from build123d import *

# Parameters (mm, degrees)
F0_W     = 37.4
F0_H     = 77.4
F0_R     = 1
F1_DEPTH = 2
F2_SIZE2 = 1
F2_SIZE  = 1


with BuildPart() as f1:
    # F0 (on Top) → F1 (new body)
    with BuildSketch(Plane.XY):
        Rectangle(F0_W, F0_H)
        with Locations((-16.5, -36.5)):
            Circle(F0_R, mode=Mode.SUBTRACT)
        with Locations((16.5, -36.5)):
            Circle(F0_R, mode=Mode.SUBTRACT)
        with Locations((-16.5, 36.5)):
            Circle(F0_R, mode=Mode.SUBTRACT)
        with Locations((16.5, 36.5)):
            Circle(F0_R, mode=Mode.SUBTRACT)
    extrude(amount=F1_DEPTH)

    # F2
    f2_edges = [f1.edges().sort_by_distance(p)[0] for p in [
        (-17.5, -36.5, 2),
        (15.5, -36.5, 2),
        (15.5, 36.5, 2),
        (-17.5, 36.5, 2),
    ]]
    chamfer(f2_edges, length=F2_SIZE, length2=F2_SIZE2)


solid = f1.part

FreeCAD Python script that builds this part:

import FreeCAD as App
import Part
import Sketcher
from FreeCAD import Vector


def edges_at(feature, points):
    """Names of the edges that pass closest to the given points."""
    edges = feature.Shape.Edges
    near = lambda p: min(range(len(edges)), key=lambda i: edges[i].distToShape(Part.Vertex(*p))[0])
    return sorted({f"Edge{near(p) + 1}" for p in points})


def add_polygon(sketch, points):
    """Adds a closed chain of lines whose ends are joined by coincident constraints."""
    first, n = sketch.GeometryCount, len(points)
    for a, b in zip(points, points[1:] + points[:1]):
        sketch.addGeometry(Part.LineSegment(App.Vector(*a, 0), App.Vector(*b, 0)), False)
    for i in range(n):
        sketch.addConstraint(Sketcher.Constraint("Coincident", first + i, 2, first + (i + 1) % n, 1))

doc = App.newDocument("Part")
params = doc.addObject("Spreadsheet::Sheet", "Params")
for row, (alias, value) in enumerate([
    ("sketch1_diameter", "2 mm"),
    ("sketch1_width", "37.4 mm"),
    ("sketch1_height", "77.4 mm"),
    ("pad1_length", "2 mm"),
    ("chamfer_size", "1 mm"),
    ("chamfer_size2", "1 mm"),
], start=1):
    params.set(f"A{row}", alias)
    params.set(f"B{row}", "=" + value)
    params.setAlias(f"B{row}", alias)

body = doc.addObject("PartDesign::Body", "Body")

# Sketch on XY plane
sketch1 = doc.addObject("Sketcher::SketchObject", "Sketch")
body.addObject(sketch1)
sketch1.AttachmentSupport = (doc.XY_Plane, [""])
sketch1.MapMode = "FlatFace"
add_polygon(sketch1, [(-18.7, 38.7), (-18.7, -38.7), (18.7, -38.7), (18.7, 38.7)])  # lines 0-3
sketch1.addGeometry(Part.Circle(Vector(-16.5, -36.5, 0), Vector(0, 0, 1), 1), False)  # 4
sketch1.addGeometry(Part.Circle(Vector(16.5, -36.5, 0), Vector(0, 0, 1), 1), False)  # 5
sketch1.addGeometry(Part.Circle(Vector(-16.5, 36.5, 0), Vector(0, 0, 1), 1), False)  # 6
sketch1.addGeometry(Part.Circle(Vector(16.5, 36.5, 0), Vector(0, 0, 1), 1), False)  # 7
sketch1.addConstraint(Sketcher.Constraint("Vertical", 0))
sketch1.addConstraint(Sketcher.Constraint("Horizontal", 1))
sketch1.addConstraint(Sketcher.Constraint("Vertical", 2))
sketch1.addConstraint(Sketcher.Constraint("Horizontal", 3))
sketch1.addConstraint(Sketcher.Constraint("Equal", 4, 5))
sketch1.addConstraint(Sketcher.Constraint("Equal", 5, 6))
sketch1.addConstraint(Sketcher.Constraint("Equal", 6, 7))
sketch1.addConstraint(Sketcher.Constraint("Symmetric", 5, 3, 6, 3, -1, 1))
sketch1.addConstraint(Sketcher.Constraint("Symmetric", 4, 3, 7, 3, -1, 1))
sketch1.addConstraint(Sketcher.Constraint("Symmetric", 0, 2, 2, 2, -1, 1))
sketch1.addConstraint(Sketcher.Constraint("Symmetric", 4, 3, 5, 3, -2))
sketch1.addConstraint(Sketcher.Constraint("Diameter", 4, 2.0))
sketch1.addConstraint(Sketcher.Constraint("DistanceX", 1, 1, 1, 2, 37.4))
sketch1.addConstraint(Sketcher.Constraint("DistanceY", 0, 2, 0, 1, 77.4))
sketch1.addConstraint(Sketcher.Constraint("DistanceX", 4, 3, 5, 3, 33.0))
sketch1.addConstraint(Sketcher.Constraint("DistanceY", 4, 3, 6, 3, 73.0))
sketch1.setExpression("Constraints[15]", "Params.sketch1_diameter")
sketch1.setExpression("Constraints[16]", "Params.sketch1_width")
sketch1.setExpression("Constraints[17]", "Params.sketch1_height")
pad1 = doc.addObject("PartDesign::Pad", "Pad")
body.addObject(pad1)
pad1.Profile = sketch1
pad1.setExpression("Length", "Params.pad1_length")
doc.recompute()

chamfer = doc.addObject("PartDesign::Chamfer", "Chamfer")
body.addObject(chamfer)
chamfer.Base = (pad1, edges_at(pad1, [
    (-17.5, -36.5, 2),
    (15.5, -36.5, 2),
    (15.5, 36.5, 2),
    (-17.5, 36.5, 2),
]))
chamfer.ChamferType = "Two distances"
chamfer.setExpression("Size", "Params.chamfer_size")
chamfer.setExpression("Size2", "Params.chamfer_size2")

doc.recompute()
